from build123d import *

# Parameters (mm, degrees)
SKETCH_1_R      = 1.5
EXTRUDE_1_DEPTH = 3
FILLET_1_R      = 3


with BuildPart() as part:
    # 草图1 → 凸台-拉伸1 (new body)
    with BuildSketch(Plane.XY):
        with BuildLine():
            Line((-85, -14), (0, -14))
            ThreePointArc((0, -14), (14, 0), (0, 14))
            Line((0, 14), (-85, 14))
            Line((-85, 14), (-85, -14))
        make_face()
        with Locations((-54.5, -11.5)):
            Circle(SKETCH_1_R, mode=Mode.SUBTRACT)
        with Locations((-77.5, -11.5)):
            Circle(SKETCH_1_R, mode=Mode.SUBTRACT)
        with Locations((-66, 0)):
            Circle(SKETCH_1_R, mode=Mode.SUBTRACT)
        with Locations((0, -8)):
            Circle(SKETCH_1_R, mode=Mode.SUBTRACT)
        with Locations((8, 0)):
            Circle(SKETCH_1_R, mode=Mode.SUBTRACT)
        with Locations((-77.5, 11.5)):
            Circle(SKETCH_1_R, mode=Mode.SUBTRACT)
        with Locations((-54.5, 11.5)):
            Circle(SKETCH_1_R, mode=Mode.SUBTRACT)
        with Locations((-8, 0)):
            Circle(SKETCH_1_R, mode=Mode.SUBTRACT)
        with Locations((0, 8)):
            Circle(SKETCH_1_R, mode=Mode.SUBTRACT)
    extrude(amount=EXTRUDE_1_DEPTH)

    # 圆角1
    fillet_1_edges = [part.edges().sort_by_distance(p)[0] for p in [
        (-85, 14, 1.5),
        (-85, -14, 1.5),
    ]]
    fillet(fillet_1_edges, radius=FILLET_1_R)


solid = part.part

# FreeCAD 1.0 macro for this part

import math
import FreeCAD as App
import Part
import Sketcher


def edges_at(feature, points):
    """Names of the edges that pass closest to the given points."""
    edges = feature.Shape.Edges
    near = lambda p: min(range(len(edges)), key=lambda i: edges[i].distToShape(Part.Vertex(*p))[0])
    return sorted({f"Edge{near(p) + 1}" for p in points})

doc = App.newDocument("Part")
params = doc.addObject("Spreadsheet::Sheet", "Params")
for row, (alias, value) in enumerate([
    ("sketch1_diameter", "3 mm"),
    ("sketch1_radius", "14 mm"),
    ("sketch1_width", "85 mm"),
    ("pad1_length", "3 mm"),
    ("fillet_radius", "3 mm"),
], start=1):
    params.set(f"A{row}", alias)
    params.set(f"B{row}", "=" + value)
    params.setAlias(f"B{row}", alias)

body = doc.addObject("PartDesign::Body", "Body")

sketch1 = body.newObject("Sketcher::SketchObject", "Sketch")
sketch1.AttachmentSupport = (doc.getObject("XY_Plane"), [""])
sketch1.MapMode = "FlatFace"
sketch1.addGeometry(Part.LineSegment(App.Vector(-85, -14, 0), App.Vector(0, -14, 0)), False)
sketch1.addGeometry(Part.ArcOfCircle(Part.Circle(App.Vector(0, 0, 0), App.Vector(0, 0, 1), 14), math.radians(-90), math.radians(90)), False)
sketch1.addGeometry(Part.LineSegment(App.Vector(0, 14, 0), App.Vector(-85, 14, 0)), False)
sketch1.addGeometry(Part.LineSegment(App.Vector(-85, 14, 0), App.Vector(-85, -14, 0)), False)
sketch1.addGeometry(Part.Circle(App.Vector(-77.5, -11.5, 0), App.Vector(0, 0, 1), 1.5), False)
sketch1.addGeometry(Part.Circle(App.Vector(-54.5, -11.5, 0), App.Vector(0, 0, 1), 1.5), False)
sketch1.addGeometry(Part.Circle(App.Vector(0, -8, 0), App.Vector(0, 0, 1), 1.5), False)
sketch1.addGeometry(Part.Circle(App.Vector(-66, 0, 0), App.Vector(0, 0, 1), 1.5), False)
sketch1.addGeometry(Part.Circle(App.Vector(-77.5, 11.5, 0), App.Vector(0, 0, 1), 1.5), False)
sketch1.addGeometry(Part.Circle(App.Vector(-54.5, 11.5, 0), App.Vector(0, 0, 1), 1.5), False)
sketch1.addGeometry(Part.Circle(App.Vector(-8, 0, 0), App.Vector(0, 0, 1), 1.5), False)
sketch1.addGeometry(Part.Circle(App.Vector(8, 0, 0), App.Vector(0, 0, 1), 1.5), False)
sketch1.addGeometry(Part.Circle(App.Vector(0, 8, 0), App.Vector(0, 0, 1), 1.5), False)
sketch1.addConstraint(Sketcher.Constraint("Tangent", 0, 2, 1, 1))
sketch1.addConstraint(Sketcher.Constraint("Tangent", 1, 2, 2, 1))
sketch1.addConstraint(Sketcher.Constraint("Coincident", 2, 2, 3, 1))
sketch1.addConstraint(Sketcher.Constraint("Coincident", 3, 2, 0, 1))
sketch1.addConstraint(Sketcher.Constraint("Horizontal", 0))
sketch1.addConstraint(Sketcher.Constraint("Horizontal", 2))
sketch1.addConstraint(Sketcher.Constraint("Vertical", 3))
sketch1.addConstraint(Sketcher.Constraint("Coincident", 1, 3, -1, 1))
sketch1.addConstraint(Sketcher.Constraint("Equal", 4, 5))
sketch1.addConstraint(Sketcher.Constraint("Equal", 5, 6))
sketch1.addConstraint(Sketcher.Constraint("Equal", 6, 7))
sketch1.addConstraint(Sketcher.Constraint("Equal", 7, 8))
sketch1.addConstraint(Sketcher.Constraint("Equal", 8, 9))
sketch1.addConstraint(Sketcher.Constraint("Equal", 9, 10))
sketch1.addConstraint(Sketcher.Constraint("Equal", 10, 11))
sketch1.addConstraint(Sketcher.Constraint("Equal", 11, 12))
sketch1.addConstraint(Sketcher.Constraint("Symmetric", 10, 3, 11, 3, -1, 1))
sketch1.addConstraint(Sketcher.Constraint("Symmetric", 6, 3, 12, 3, -1, 1))
sketch1.addConstraint(Sketcher.Constraint("Symmetric", 4, 3, 8, 3, -1))
sketch1.addConstraint(Sketcher.Constraint("Symmetric", 5, 3, 9, 3, -1))
sketch1.addConstraint(Sketcher.Constraint("PointOnObject", 6, 3, -2))
sketch1.addConstraint(Sketcher.Constraint("PointOnObject", 7, 3, -1))
sketch1.addConstraint(Sketcher.Constraint("PointOnObject", 10, 3, -1))
sketch1.addConstraint(Sketcher.Constraint("Horizontal", 4, 3, 5, 3))
sketch1.addConstraint(Sketcher.Constraint("Diameter", 4, 3.0))
sketch1.addConstraint(Sketcher.Constraint("Radius", 1, 14.0))
sketch1.addConstraint(Sketcher.Constraint("DistanceX", 0, 1, 0, 2, 85.0))
sketch1.addConstraint(Sketcher.Constraint("DistanceY", 6, 3, -1, 1, 8.0))
sketch1.addConstraint(Sketcher.Constraint("DistanceX", 7, 3, -1, 1, 66.0))
sketch1.addConstraint(Sketcher.Constraint("DistanceX", 10, 3, -1, 1, 8.0))
sketch1.addConstraint(Sketcher.Constraint("DistanceX", 4, 3, 5, 3, 23.0))
sketch1.addConstraint(Sketcher.Constraint("DistanceY", 4, 3, 8, 3, 23.0))
sketch1.addConstraint(Sketcher.Constraint("DistanceX", 4, 3, -1, 1, 77.5))
sketch1.setExpression("Constraints[24]", "Params.sketch1_diameter")
sketch1.setExpression("Constraints[25]", "Params.sketch1_radius")
sketch1.setExpression("Constraints[26]", "Params.sketch1_width")
pad1 = body.newObject("PartDesign::Pad", "Pad")
pad1.Profile = sketch1
pad1.setExpression("Length", "Params.pad1_length")
doc.recompute()

fillet = body.newObject("PartDesign::Fillet", "Fillet")
fillet.Base = (pad1, edges_at(pad1, [(-85, 14, 1.5), (-85, -14, 1.5)]))
fillet.setExpression("Radius", "Params.fillet_radius")

doc.recompute()
